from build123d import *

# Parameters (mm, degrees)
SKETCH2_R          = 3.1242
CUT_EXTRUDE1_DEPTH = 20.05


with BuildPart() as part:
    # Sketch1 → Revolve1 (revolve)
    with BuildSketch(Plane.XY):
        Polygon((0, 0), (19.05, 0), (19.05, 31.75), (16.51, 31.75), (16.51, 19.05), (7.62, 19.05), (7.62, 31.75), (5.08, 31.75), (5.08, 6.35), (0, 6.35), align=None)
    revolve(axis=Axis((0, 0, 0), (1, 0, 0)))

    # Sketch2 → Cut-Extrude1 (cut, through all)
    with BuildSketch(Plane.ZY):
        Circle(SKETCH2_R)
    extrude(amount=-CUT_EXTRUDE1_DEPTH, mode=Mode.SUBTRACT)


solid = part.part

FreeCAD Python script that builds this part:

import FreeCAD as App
import Part
import Sketcher

V = App.Vector
Q = App.Units.Quantity


def add_polygon(sketch, points):
    """Adds a closed chain of lines whose ends are joined by coincident constraints."""
    first, n = sketch.GeometryCount, len(points)
    for a, b in zip(points, points[1:] + points[:1]):
        sketch.addGeometry(Part.LineSegment(App.Vector(*a, 0), App.Vector(*b, 0)), False)
    for i in range(n):
        sketch.addConstraint(Sketcher.Constraint("Coincident", first + i, 2, first + (i + 1) % n, 1))

doc = App.newDocument("Part")
body = doc.addObject("PartDesign::Body", "Body")

sketch1 = body.newObject("Sketcher::SketchObject", "Sketch")
sketch1.AttachmentSupport = (doc.getObject("XY_Plane"), [""])
sketch1.MapMode = "FlatFace"
add_polygon(sketch1, [(0, 0), (19.05, 0), (19.05, 31.75), (16.51, 31.75), (16.51, 19.05), (7.62, 19.05), (7.62, 31.75), (5.08, 31.75), (5.08, 6.35), (0, 6.35)])
sketch1.addConstraint([
    Sketcher.Constraint("Horizontal", 0),
    Sketcher.Constraint("Vertical", 1),
    Sketcher.Constraint("Horizontal", 2),
    Sketcher.Constraint("Vertical", 3),
    Sketcher.Constraint("Horizontal", 4),
    Sketcher.Constraint("Vertical", 5),
    Sketcher.Constraint("Horizontal", 6),
    Sketcher.Constraint("Vertical", 7),
    Sketcher.Constraint("Horizontal", 8),
    Sketcher.Constraint("Vertical", 9),
    Sketcher.Constraint("Coincident", 9, 2, -1, 1),
    Sketcher.Constraint("Horizontal", 2, 2, 5, 2),
    Sketcher.Constraint("Equal", 2, 6),
    Sketcher.Constraint("DistanceY", 7, 2, 7, 1, Q("1 in")),
    Sketcher.Constraint("DistanceX", 2, 2, 2, 1, Q("0.1 in")),
    Sketcher.Constraint("DistanceX", 8, 2, 8, 1, Q("0.2 in")),
    Sketcher.Constraint("DistanceY", 3, 2, 3, 1, Q("0.5 in")),
    Sketcher.Constraint("DistanceX", 0, 1, 0, 2, Q("0.75 in")),
    Sketcher.Constraint("DistanceY", 1, 1, 1, 2, Q("1.25 in")),
])
revolution = body.newObject("PartDesign::Revolution", "Revolution")
revolution.Profile = sketch1
revolution.ReferenceAxis = (sketch1, ["H_Axis"])
revolution.Angle = 360

sketch2 = body.newObject("Sketcher::SketchObject", "Sketch001")
sketch2.AttachmentSupport = (doc.getObject("YZ_Plane"), [""])
sketch2.MapMode = "FlatFace"
sketch2.addGeometry(Part.Circle(V(0, 0, 0), V(0, 0, 1), 3.1242), False)
sketch2.addConstraint([
    Sketcher.Constraint("Coincident", 0, 3, -1, 1),
    Sketcher.Constraint("Diameter", 0, Q("0.246 in")),
])
pocket1 = body.newObject("PartDesign::Pocket", "Pocket")
pocket1.Profile = sketch2
pocket1.Type = "ThroughAll"
pocket1.Reversed = True

doc.recompute()
